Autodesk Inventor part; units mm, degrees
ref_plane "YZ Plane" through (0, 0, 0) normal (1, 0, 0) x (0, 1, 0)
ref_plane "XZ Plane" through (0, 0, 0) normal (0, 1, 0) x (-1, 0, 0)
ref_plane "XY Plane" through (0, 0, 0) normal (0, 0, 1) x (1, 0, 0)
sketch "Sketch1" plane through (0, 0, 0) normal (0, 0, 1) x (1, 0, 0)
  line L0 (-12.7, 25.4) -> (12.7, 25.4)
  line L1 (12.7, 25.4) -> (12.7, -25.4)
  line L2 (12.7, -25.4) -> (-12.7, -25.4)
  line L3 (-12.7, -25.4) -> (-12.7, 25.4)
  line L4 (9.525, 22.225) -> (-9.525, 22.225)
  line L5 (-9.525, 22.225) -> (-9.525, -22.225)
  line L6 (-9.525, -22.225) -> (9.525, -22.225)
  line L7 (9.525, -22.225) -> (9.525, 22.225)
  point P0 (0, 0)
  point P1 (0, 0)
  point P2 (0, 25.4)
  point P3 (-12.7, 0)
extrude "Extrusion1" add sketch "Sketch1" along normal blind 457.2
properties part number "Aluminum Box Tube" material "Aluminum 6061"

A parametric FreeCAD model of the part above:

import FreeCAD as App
import Part
import Sketcher

V = App.Vector
Q = App.Units.Quantity

doc = App.newDocument("Part")
body = doc.addObject("PartDesign::Body", "Body")

# Sketch on XY plane
sketch1 = doc.addObject("Sketcher::SketchObject", "Sketch")
body.addObject(sketch1)
sketch1.AttachmentSupport = (doc.XY_Plane, [""])
sketch1.MapMode = "FlatFace"
sketch1.addGeometry(Part.LineSegment(V(13, 25, 0), V(-13, 25, 0)), False)
sketch1.addGeometry(Part.LineSegment(V(-13, 25, 0), V(-13, -25, 0)), False)
sketch1.addGeometry(Part.LineSegment(V(-13, -25, 0), V(13, -25, 0)), False)
sketch1.addGeometry(Part.LineSegment(V(13, -25, 0), V(13, 25, 0)), False)
sketch1.addGeometry(Part.LineSegment(V(-10, 22, 0), V(10, 22, 0)), False)
sketch1.addGeometry(Part.LineSegment(V(10, 22, 0), V(10, -22, 0)), False)
sketch1.addGeometry(Part.LineSegment(V(10, -22, 0), V(-10, -22, 0)), False)
sketch1.addGeometry(Part.LineSegment(V(-10, -22, 0), V(-10, 22, 0)), False)
sketch1.addConstraint(Sketcher.Constraint("Coincident", 0, 2, 1, 1))
sketch1.addConstraint(Sketcher.Constraint("Coincident", 1, 2, 2, 1))
sketch1.addConstraint(Sketcher.Constraint("Coincident", 2, 2, 3, 1))
sketch1.addConstraint(Sketcher.Constraint("Coincident", 3, 2, 0, 1))
sketch1.addConstraint(Sketcher.Constraint("Coincident", 4, 2, 5, 1))
sketch1.addConstraint(Sketcher.Constraint("Coincident", 5, 2, 6, 1))
sketch1.addConstraint(Sketcher.Constraint("Coincident", 6, 2, 7, 1))
sketch1.addConstraint(Sketcher.Constraint("Coincident", 7, 2, 4, 1))
sketch1.addConstraint(Sketcher.Constraint("Horizontal", 0))
sketch1.addConstraint(Sketcher.Constraint("Vertical", 1))
sketch1.addConstraint(Sketcher.Constraint("Horizontal", 2))
sketch1.addConstraint(Sketcher.Constraint("Vertical", 3))
sketch1.addConstraint(Sketcher.Constraint("Horizontal", 4))
sketch1.addConstraint(Sketcher.Constraint("Vertical", 5))
sketch1.addConstraint(Sketcher.Constraint("Horizontal", 6))
sketch1.addConstraint(Sketcher.Constraint("Vertical", 7))
sketch1.addConstraint(Sketcher.Constraint("Symmetric", 0, 2, 2, 2, -1, 1))
sketch1.addConstraint(Sketcher.Constraint("Symmetric", 4, 2, 6, 2, -1, 1))
sketch1.addConstraint(Sketcher.Constraint("DistanceX", 0, 2, 0, 1, Q("1 in")))
sketch1.addConstraint(Sketcher.Constraint("DistanceY", 1, 2, 1, 1, Q("2 in")))
sketch1.addConstraint(Sketcher.Constraint("DistanceX", 4, 1, 4, 2, Q("0.75 in")))
sketch1.addConstraint(Sketcher.Constraint("DistanceY", 5, 2, 5, 1, Q("1.75 in")))
pad1 = doc.addObject("PartDesign::Pad", "Pad")
body.addObject(pad1)
pad1.Profile = sketch1
pad1.Length = Q("18 in")

doc.recompute()
